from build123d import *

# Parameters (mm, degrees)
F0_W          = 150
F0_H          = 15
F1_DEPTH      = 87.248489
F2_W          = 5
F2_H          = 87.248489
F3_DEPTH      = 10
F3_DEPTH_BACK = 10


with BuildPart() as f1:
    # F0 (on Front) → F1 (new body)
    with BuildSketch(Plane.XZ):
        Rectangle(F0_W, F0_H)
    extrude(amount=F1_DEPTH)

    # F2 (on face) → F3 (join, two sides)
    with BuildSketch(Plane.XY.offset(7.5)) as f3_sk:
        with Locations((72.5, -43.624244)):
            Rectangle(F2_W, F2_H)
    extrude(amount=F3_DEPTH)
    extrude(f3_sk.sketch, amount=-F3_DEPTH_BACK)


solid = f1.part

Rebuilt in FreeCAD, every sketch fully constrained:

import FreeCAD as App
import Part
import Sketcher

V = App.Vector
Q = App.Units.Quantity

doc = App.newDocument("Part")
body = doc.addObject("PartDesign::Body", "Body")

sketch1 = body.newObject("Sketcher::SketchObject", "Sketch")
sketch1.AttachmentSupport = (doc.getObject("XZ_Plane"), [""])
sketch1.MapMode = "FlatFace"
sketch1.addGeometry([
    Part.LineSegment(V(-75, 8, 0), V(-75, -8, 0)),
    Part.LineSegment(V(-75, -8, 0), V(75, -8, 0)),
    Part.LineSegment(V(75, -8, 0), V(75, 8, 0)),
    Part.LineSegment(V(75, 8, 0), V(-75, 8, 0)),
], False)
sketch1.addConstraint([
    Sketcher.Constraint("Coincident", 0, 2, 1, 1),
    Sketcher.Constraint("Coincident", 1, 2, 2, 1),
    Sketcher.Constraint("Coincident", 2, 2, 3, 1),
    Sketcher.Constraint("Coincident", 3, 2, 0, 1),
    Sketcher.Constraint("Vertical", 0),
    Sketcher.Constraint("Horizontal", 1),
    Sketcher.Constraint("Vertical", 2),
    Sketcher.Constraint("Horizontal", 3),
    Sketcher.Constraint("Symmetric", 0, 2, 2, 2, -1, 1),
    Sketcher.Constraint("DistanceX", 1, 1, 1, 2, Q("150 mm")),
    Sketcher.Constraint("DistanceY", 0, 2, 0, 1, Q("15 mm")),
])
pad1 = body.newObject("PartDesign::Pad", "Pad")
pad1.Profile = sketch1
pad1.Length = 87.248489

sketch2 = body.newObject("Sketcher::SketchObject", "Sketch001")
sketch2.AttachmentSupport = (doc.getObject("XY_Plane"), [""])
sketch2.MapMode = "FlatFace"
sketch2.AttachmentOffset = App.Placement(V(0, 0, 7.5), App.Rotation())
sketch2.addGeometry([
    Part.LineSegment(V(70, 0, 0), V(70, -87, 0)),
    Part.LineSegment(V(70, -87, 0), V(75, -87, 0)),
    Part.LineSegment(V(75, -87, 0), V(75, 0, 0)),
    Part.LineSegment(V(75, 0, 0), V(70, 0, 0)),
], False)
sketch2.addConstraint([
    Sketcher.Constraint("Coincident", 0, 2, 1, 1),
    Sketcher.Constraint("Coincident", 1, 2, 2, 1),
    Sketcher.Constraint("Coincident", 2, 2, 3, 1),
    Sketcher.Constraint("Coincident", 3, 2, 0, 1),
    Sketcher.Constraint("Vertical", 0),
    Sketcher.Constraint("Horizontal", 1),
    Sketcher.Constraint("Vertical", 2),
    Sketcher.Constraint("Horizontal", 3),
    Sketcher.Constraint("PointOnObject", 2, 2, -1),
    Sketcher.Constraint("DistanceX", 1, 1, 1, 2, Q("5 mm")),
    Sketcher.Constraint("DistanceX", -1, 1, 0, 2, Q("70 mm")),
    Sketcher.Constraint("DistanceY", 0, 2, 0, 1, Q("87.248489 mm")),
])
pad2 = body.newObject("PartDesign::Pad", "Pad001")
pad2.Profile = sketch2
pad2.Type = "TwoLengths"
pad2.Length = 10
pad2.Length2 = 10

doc.recompute()
